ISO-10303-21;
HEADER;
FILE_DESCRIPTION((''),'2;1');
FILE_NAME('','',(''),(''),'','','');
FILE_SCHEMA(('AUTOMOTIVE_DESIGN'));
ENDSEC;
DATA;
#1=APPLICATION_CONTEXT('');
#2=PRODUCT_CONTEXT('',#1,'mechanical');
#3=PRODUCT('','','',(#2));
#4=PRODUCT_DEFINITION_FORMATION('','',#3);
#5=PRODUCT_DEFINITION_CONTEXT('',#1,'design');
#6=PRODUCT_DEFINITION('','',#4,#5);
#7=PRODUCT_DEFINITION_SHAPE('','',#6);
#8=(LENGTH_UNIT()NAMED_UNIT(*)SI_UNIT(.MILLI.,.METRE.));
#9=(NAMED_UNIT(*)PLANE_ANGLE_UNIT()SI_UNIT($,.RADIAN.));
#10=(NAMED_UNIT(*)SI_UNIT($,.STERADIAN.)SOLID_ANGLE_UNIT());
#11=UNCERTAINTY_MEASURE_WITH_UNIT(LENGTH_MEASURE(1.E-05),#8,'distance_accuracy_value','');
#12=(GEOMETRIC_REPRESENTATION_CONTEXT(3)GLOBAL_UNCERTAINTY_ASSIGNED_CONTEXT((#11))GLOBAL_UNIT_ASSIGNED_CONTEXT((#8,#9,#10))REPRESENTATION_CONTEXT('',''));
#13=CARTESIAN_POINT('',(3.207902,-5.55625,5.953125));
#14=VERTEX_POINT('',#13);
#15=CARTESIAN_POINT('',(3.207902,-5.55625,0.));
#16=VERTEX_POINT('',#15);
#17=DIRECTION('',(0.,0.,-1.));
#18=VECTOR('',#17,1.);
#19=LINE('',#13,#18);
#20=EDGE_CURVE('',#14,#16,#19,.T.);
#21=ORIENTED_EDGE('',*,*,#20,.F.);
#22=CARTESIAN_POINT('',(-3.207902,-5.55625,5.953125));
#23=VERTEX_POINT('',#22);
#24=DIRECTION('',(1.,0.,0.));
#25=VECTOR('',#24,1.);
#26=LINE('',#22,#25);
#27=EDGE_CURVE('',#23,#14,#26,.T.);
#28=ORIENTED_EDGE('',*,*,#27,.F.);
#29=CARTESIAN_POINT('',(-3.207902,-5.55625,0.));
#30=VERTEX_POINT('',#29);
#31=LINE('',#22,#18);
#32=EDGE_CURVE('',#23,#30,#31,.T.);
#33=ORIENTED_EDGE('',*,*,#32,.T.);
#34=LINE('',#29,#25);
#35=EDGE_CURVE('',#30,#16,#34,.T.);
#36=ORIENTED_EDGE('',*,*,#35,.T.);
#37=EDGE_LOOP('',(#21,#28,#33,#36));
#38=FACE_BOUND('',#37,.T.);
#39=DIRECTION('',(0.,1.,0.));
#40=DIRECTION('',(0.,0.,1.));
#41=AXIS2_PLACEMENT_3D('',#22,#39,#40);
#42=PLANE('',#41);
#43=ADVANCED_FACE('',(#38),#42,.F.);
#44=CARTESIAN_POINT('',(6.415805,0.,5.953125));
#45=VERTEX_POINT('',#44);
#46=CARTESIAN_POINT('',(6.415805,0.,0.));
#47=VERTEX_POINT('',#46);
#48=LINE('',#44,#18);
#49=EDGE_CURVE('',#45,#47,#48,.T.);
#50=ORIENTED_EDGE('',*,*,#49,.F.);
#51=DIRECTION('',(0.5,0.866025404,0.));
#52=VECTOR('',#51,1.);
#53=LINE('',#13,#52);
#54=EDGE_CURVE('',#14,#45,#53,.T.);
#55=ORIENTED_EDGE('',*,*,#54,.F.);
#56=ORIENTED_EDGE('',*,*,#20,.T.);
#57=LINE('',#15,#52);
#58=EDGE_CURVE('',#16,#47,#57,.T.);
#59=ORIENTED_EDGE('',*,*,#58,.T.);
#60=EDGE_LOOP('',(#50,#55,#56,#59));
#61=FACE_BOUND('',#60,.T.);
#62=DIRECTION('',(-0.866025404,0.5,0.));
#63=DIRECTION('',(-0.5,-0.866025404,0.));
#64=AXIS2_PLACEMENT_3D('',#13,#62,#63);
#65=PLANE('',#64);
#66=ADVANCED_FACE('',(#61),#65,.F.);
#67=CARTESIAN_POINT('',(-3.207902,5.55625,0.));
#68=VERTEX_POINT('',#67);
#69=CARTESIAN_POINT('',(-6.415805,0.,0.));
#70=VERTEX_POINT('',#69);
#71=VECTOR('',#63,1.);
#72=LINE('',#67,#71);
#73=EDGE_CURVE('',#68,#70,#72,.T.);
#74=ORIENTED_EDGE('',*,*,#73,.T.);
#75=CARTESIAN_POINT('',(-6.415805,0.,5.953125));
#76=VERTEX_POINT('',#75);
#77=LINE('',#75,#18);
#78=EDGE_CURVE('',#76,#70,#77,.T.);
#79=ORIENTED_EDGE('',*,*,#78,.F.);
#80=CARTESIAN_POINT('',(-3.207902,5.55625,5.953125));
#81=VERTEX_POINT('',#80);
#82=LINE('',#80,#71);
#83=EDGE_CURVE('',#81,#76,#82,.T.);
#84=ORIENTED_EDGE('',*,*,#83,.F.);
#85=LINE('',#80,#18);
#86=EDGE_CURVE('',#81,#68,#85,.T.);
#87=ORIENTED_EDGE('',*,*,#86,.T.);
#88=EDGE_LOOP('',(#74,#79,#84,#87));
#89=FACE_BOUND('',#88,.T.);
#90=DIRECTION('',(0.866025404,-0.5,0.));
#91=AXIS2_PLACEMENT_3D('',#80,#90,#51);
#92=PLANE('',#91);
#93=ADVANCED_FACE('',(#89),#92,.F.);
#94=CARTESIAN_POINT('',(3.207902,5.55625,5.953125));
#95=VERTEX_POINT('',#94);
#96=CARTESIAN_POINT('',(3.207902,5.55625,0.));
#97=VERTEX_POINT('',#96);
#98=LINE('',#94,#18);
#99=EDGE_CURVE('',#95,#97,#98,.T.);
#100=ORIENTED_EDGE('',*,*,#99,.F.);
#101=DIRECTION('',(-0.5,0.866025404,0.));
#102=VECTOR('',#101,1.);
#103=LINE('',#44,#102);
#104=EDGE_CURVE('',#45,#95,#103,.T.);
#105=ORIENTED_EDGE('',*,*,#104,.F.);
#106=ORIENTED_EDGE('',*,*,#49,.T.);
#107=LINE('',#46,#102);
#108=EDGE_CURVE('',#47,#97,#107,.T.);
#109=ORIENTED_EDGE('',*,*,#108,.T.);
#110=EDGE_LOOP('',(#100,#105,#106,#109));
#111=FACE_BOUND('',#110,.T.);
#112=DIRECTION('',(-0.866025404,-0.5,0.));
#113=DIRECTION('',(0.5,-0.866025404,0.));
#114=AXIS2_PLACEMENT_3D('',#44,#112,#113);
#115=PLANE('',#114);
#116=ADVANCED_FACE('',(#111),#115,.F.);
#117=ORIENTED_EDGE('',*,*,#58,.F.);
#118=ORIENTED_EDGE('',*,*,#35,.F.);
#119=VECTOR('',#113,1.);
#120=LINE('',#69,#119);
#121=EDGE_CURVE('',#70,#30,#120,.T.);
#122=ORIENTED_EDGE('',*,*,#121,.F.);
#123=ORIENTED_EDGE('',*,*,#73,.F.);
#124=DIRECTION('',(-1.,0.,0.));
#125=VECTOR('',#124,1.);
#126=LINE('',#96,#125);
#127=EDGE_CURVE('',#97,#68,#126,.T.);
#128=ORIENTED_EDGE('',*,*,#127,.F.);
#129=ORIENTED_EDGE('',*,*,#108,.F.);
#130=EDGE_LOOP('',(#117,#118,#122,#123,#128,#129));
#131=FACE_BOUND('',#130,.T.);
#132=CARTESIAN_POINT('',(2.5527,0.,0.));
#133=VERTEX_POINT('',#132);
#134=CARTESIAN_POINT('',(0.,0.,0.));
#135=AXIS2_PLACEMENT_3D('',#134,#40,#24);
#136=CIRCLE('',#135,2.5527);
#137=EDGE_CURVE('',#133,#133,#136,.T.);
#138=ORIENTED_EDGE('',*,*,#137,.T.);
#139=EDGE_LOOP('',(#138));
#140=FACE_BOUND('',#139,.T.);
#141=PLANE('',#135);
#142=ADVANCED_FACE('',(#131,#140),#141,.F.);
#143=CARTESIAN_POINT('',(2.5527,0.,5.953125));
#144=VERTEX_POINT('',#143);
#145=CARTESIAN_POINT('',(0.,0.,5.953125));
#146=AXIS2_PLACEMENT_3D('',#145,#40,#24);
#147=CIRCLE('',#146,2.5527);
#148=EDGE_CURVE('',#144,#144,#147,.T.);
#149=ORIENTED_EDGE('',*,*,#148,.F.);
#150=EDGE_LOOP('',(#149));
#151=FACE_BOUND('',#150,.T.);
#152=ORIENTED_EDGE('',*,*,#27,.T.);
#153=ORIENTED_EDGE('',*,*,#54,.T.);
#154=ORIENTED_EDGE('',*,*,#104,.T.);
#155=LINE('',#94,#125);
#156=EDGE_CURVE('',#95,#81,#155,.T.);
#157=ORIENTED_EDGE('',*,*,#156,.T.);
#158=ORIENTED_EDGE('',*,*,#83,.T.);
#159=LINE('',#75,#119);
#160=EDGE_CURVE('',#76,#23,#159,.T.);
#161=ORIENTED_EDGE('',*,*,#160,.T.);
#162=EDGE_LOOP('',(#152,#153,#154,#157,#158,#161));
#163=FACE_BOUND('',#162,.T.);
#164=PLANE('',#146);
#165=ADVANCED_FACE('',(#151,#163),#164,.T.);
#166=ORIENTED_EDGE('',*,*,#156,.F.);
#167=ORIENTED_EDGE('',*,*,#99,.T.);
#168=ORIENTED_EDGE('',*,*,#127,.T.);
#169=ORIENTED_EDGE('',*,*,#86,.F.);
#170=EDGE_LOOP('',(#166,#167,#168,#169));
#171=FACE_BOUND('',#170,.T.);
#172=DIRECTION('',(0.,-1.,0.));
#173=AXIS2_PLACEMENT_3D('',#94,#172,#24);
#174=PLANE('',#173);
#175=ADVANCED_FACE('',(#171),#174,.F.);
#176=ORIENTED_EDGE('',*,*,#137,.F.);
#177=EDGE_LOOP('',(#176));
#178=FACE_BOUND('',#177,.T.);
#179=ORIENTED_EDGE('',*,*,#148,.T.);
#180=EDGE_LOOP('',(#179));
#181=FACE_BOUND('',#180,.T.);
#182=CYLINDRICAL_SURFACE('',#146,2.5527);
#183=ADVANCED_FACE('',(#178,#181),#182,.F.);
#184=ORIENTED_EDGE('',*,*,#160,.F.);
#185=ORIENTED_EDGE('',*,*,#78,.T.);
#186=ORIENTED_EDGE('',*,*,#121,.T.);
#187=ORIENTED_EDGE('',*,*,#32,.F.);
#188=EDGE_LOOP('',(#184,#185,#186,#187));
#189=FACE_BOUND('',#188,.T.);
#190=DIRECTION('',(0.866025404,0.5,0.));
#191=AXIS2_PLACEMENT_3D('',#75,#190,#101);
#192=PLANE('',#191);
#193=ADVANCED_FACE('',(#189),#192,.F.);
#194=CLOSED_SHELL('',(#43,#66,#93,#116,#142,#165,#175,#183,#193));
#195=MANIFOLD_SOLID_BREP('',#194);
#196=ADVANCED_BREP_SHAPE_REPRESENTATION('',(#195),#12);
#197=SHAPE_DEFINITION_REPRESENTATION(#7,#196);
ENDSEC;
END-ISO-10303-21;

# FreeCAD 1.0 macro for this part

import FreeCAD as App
import Part
import Sketcher

V = App.Vector
Q = App.Units.Quantity

doc = App.newDocument("Part")
body = doc.addObject("PartDesign::Body", "Body")

sketch1 = body.newObject("Sketcher::SketchObject", "Sketch")
sketch1.AttachmentSupport = (doc.getObject("XY_Plane"), [""])
sketch1.MapMode = "FlatFace"
sketch1.addGeometry([
    Part.LineSegment(V(-3, -6, 0), V(3, -6, 0)),
    Part.LineSegment(V(3, -6, 0), V(6, 0, 0)),
    Part.LineSegment(V(6, 0, 0), V(3, 6, 0)),
    Part.LineSegment(V(3, 6, 0), V(-3, 6, 0)),
    Part.LineSegment(V(-3, 6, 0), V(-6, 0, 0)),
    Part.LineSegment(V(-6, 0, 0), V(-3, -6, 0)),
], False)
sketch1.addConstraint([
    Sketcher.Constraint("Coincident", 0, 2, 1, 1),
    Sketcher.Constraint("Coincident", 1, 2, 2, 1),
    Sketcher.Constraint("Coincident", 2, 2, 3, 1),
    Sketcher.Constraint("Coincident", 3, 2, 4, 1),
    Sketcher.Constraint("Coincident", 4, 2, 5, 1),
    Sketcher.Constraint("Coincident", 5, 2, 0, 1),
    Sketcher.Constraint("Horizontal", 0),
    Sketcher.Constraint("Horizontal", 3),
    Sketcher.Constraint("Symmetric", 0, 2, 3, 2, -1, 1),
    Sketcher.Constraint("Symmetric", 1, 2, 4, 2, -1, 1),
    Sketcher.Constraint("PointOnObject", 1, 2, -1),
    Sketcher.Constraint("Parallel", 2, 5),
    Sketcher.Constraint("Vertical", 0, 2, 2, 2),
    Sketcher.Constraint("Angle", 1, Q("60 deg")),
    Sketcher.Constraint("DistanceY", 0, 2, -1, 1, Q("0.21875 in")),
    Sketcher.Constraint("DistanceX", 0, 1, 0, 2, Q("6.415805 mm")),
])
pad1 = body.newObject("PartDesign::Pad", "Pad")
pad1.Profile = sketch1
pad1.Length = Q("0.234375 in")

sketch2 = body.newObject("Sketcher::SketchObject", "Sketch001")
sketch2.AttachmentSupport = (doc.getObject("XY_Plane"), [""])
sketch2.MapMode = "FlatFace"
sketch2.AttachmentOffset = App.Placement(V(0, 0, 0.234375 * 25.4), App.Rotation())
sketch2.addGeometry(Part.Circle(V(0, 0, 0), V(0, 0, 1), 2.6), False)
sketch2.addConstraint([
    Sketcher.Constraint("Coincident", 0, 3, -1, 1),
    Sketcher.Constraint("Diameter", 0, Q("0.201 in")),
])
doc.recompute()
hole = body.newObject("PartDesign::Hole", "Hole")
hole.Profile = sketch2
hole.ThreadType = "None"
hole.Diameter = Q("0.201 in")
hole.DepthType = "ThroughAll"

doc.recompute()
